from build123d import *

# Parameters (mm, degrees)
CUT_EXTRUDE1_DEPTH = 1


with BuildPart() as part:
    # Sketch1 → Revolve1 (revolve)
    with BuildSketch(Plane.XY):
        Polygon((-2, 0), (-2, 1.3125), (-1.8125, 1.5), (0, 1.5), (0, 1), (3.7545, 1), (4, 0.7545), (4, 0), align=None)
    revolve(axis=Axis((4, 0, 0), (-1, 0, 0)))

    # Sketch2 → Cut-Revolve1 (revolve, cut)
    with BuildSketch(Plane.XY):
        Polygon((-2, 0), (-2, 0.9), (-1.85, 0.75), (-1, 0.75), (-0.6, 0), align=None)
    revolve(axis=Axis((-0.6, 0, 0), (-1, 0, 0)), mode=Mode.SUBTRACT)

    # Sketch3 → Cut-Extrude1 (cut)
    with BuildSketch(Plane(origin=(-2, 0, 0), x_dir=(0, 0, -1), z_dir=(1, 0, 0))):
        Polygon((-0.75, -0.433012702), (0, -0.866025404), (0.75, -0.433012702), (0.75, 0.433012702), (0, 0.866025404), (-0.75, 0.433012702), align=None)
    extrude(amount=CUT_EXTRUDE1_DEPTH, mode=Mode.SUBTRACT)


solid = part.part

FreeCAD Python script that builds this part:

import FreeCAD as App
import Part
import Sketcher
Q = App.Units.Quantity

doc = App.newDocument("Part")
body = doc.addObject("PartDesign::Body", "Body")

# Sketch on XY plane
sketch1 = body.newObject("Sketcher::SketchObject", "Sketch")
sketch1.AttachmentSupport = (doc.getObject("XY_Plane"), [""])
sketch1.MapMode = "FlatFace"
sketch1.addGeometry([
    Part.LineSegment(App.Vector(-2, 1.31, 0), App.Vector(-2, 0, 0)),  # 0
    Part.LineSegment(App.Vector(-2, 0, 0), App.Vector(4, 0, 0)),  # 1
    Part.LineSegment(App.Vector(4, 0, 0), App.Vector(4, 0.75, 0)),  # 2
    Part.LineSegment(App.Vector(4, 0.75, 0), App.Vector(3.75, 1, 0)),  # 3
    Part.LineSegment(App.Vector(3.75, 1, 0), App.Vector(0, 1, 0)),  # 4
    Part.LineSegment(App.Vector(0, 1, 0), App.Vector(0, 1.5, 0)),  # 5
    Part.LineSegment(App.Vector(0, 1.5, 0), App.Vector(-1.81, 1.5, 0)),  # 6
    Part.LineSegment(App.Vector(-1.81, 1.5, 0), App.Vector(-2, 1.31, 0)),  # 7
], False)
sketch1.addConstraint([
    Sketcher.Constraint("Coincident", 0, 2, 1, 1),
    Sketcher.Constraint("Coincident", 1, 2, 2, 1),
    Sketcher.Constraint("Coincident", 2, 2, 3, 1),
    Sketcher.Constraint("Coincident", 3, 2, 4, 1),
    Sketcher.Constraint("Coincident", 4, 2, 5, 1),
    Sketcher.Constraint("Coincident", 5, 2, 6, 1),
    Sketcher.Constraint("Coincident", 6, 2, 7, 1),
    Sketcher.Constraint("Coincident", 7, 2, 0, 1),
    Sketcher.Constraint("Vertical", 0),
    Sketcher.Constraint("Horizontal", 1),
    Sketcher.Constraint("Vertical", 2),
    Sketcher.Constraint("Horizontal", 4),
    Sketcher.Constraint("Vertical", 5),
    Sketcher.Constraint("Horizontal", 6),
    Sketcher.Constraint("PointOnObject", 0, 2, -1),
    Sketcher.Constraint("PointOnObject", 4, 2, -2),
    Sketcher.Constraint("Perpendicular", 3, 7),
    Sketcher.Constraint("DistanceX", 1, 1, 1, 2, Q("6 mm")),
    Sketcher.Constraint("Angle", 3, Q("135 deg")),
    Sketcher.Constraint("DistanceY", 5, 1, 5, 2, Q("0.5 mm")),
    Sketcher.Constraint("DistanceX", 0, 2, -1, 1, Q("2 mm")),
    Sketcher.Constraint("DistanceY", -1, 1, 3, 2, Q("1 mm")),
    Sketcher.Constraint("DistanceX", 4, 2, 4, 1, Q("3.7545 mm")),
    Sketcher.Constraint("DistanceX", 6, 2, 6, 1, Q("1.8125 mm")),
])
revolution = body.newObject("PartDesign::Revolution", "Revolution")
revolution.Profile = sketch1
revolution.ReferenceAxis = (sketch1, ["H_Axis"])
revolution.Angle = 360

# Sketch on XY plane
sketch2 = body.newObject("Sketcher::SketchObject", "Sketch001")
sketch2.AttachmentSupport = (doc.getObject("XY_Plane"), [""])
sketch2.MapMode = "FlatFace"
sketch2.addGeometry([
    Part.LineSegment(App.Vector(-2, 0.9, 0), App.Vector(-2, 0, 0)),  # 0
    Part.LineSegment(App.Vector(-2, 0, 0), App.Vector(-0.6, 0, 0)),  # 1
    Part.LineSegment(App.Vector(-0.6, 0, 0), App.Vector(-1, 0.75, 0)),  # 2
    Part.LineSegment(App.Vector(-1, 0.75, 0), App.Vector(-1.85, 0.75, 0)),  # 3
    Part.LineSegment(App.Vector(-1.85, 0.75, 0), App.Vector(-2, 0.9, 0)),  # 4
], False)
sketch2.addConstraint([
    Sketcher.Constraint("Coincident", 0, 2, 1, 1),
    Sketcher.Constraint("Coincident", 1, 2, 2, 1),
    Sketcher.Constraint("Coincident", 2, 2, 3, 1),
    Sketcher.Constraint("Coincident", 3, 2, 4, 1),
    Sketcher.Constraint("Coincident", 4, 2, 0, 1),
    Sketcher.Constraint("Vertical", 0),
    Sketcher.Constraint("Horizontal", 1),
    Sketcher.Constraint("Horizontal", 3),
    Sketcher.Constraint("PointOnObject", 0, 2, -1),
    Sketcher.Constraint("Angle", 4, Q("135 deg")),
    Sketcher.Constraint("DistanceX", 1, 1, 1, 2, Q("1.4 mm")),
    Sketcher.Constraint("DistanceY", 0, 2, 0, 1, Q("0.9 mm")),
    Sketcher.Constraint("DistanceX", 0, 2, -1, 1, Q("2 mm")),
    Sketcher.Constraint("DistanceX", 2, 2, -1, 1, Q("1 mm")),
    Sketcher.Constraint("DistanceX", 3, 2, 3, 1, Q("0.85 mm")),
])
groove = body.newObject("PartDesign::Groove", "Groove")
groove.Profile = sketch2
groove.ReferenceAxis = (sketch2, ["H_Axis"])
groove.Angle = 360

# Sketch on YZ plane
sketch3 = body.newObject("Sketcher::SketchObject", "Sketch002")
sketch3.AttachmentSupport = (doc.getObject("YZ_Plane"), [""])
sketch3.MapMode = "FlatFace"
sketch3.AttachmentOffset = App.Placement(App.Vector(0, 0, -2), App.Rotation())
sketch3.addGeometry([
    Part.LineSegment(App.Vector(-0.4, 0.8, 0), App.Vector(-0.9, 0, 0)),  # 0
    Part.LineSegment(App.Vector(-0.9, 0, 0), App.Vector(-0.4, -0.8, 0)),  # 1
    Part.LineSegment(App.Vector(-0.4, -0.8, 0), App.Vector(0.4, -0.8, 0)),  # 2
    Part.LineSegment(App.Vector(0.4, -0.8, 0), App.Vector(0.9, 0, 0)),  # 3
    Part.LineSegment(App.Vector(0.9, 0, 0), App.Vector(0.4, 0.8, 0)),  # 4
    Part.LineSegment(App.Vector(0.4, 0.8, 0), App.Vector(-0.4, 0.8, 0)),  # 5
], False)
sketch3.addConstraint([
    Sketcher.Constraint("Coincident", 0, 2, 1, 1),
    Sketcher.Constraint("Coincident", 1, 2, 2, 1),
    Sketcher.Constraint("Coincident", 2, 2, 3, 1),
    Sketcher.Constraint("Coincident", 3, 2, 4, 1),
    Sketcher.Constraint("Coincident", 4, 2, 5, 1),
    Sketcher.Constraint("Coincident", 5, 2, 0, 1),
    Sketcher.Constraint("Horizontal", 2),
    Sketcher.Constraint("Horizontal", 5),
    Sketcher.Constraint("Symmetric", 0, 2, 3, 2, -1, 1),
    Sketcher.Constraint("Symmetric", 1, 2, 4, 2, -1, 1),
    Sketcher.Constraint("PointOnObject", 0, 2, -1),
    Sketcher.Constraint("Parallel", 0, 3),
    Sketcher.Constraint("Vertical", 2, 2, 4, 2),
    Sketcher.Constraint("Angle", 0, Q("-120 deg")),
    Sketcher.Constraint("DistanceY", 2, 2, 4, 2, Q("1.5 mm")),
    Sketcher.Constraint("DistanceX", 2, 1, 2, 2, Q("0.866025 mm")),
])
pocket1 = body.newObject("PartDesign::Pocket", "Pocket")
pocket1.Profile = sketch3
pocket1.Length = 1
pocket1.Reversed = True

doc.recompute()
